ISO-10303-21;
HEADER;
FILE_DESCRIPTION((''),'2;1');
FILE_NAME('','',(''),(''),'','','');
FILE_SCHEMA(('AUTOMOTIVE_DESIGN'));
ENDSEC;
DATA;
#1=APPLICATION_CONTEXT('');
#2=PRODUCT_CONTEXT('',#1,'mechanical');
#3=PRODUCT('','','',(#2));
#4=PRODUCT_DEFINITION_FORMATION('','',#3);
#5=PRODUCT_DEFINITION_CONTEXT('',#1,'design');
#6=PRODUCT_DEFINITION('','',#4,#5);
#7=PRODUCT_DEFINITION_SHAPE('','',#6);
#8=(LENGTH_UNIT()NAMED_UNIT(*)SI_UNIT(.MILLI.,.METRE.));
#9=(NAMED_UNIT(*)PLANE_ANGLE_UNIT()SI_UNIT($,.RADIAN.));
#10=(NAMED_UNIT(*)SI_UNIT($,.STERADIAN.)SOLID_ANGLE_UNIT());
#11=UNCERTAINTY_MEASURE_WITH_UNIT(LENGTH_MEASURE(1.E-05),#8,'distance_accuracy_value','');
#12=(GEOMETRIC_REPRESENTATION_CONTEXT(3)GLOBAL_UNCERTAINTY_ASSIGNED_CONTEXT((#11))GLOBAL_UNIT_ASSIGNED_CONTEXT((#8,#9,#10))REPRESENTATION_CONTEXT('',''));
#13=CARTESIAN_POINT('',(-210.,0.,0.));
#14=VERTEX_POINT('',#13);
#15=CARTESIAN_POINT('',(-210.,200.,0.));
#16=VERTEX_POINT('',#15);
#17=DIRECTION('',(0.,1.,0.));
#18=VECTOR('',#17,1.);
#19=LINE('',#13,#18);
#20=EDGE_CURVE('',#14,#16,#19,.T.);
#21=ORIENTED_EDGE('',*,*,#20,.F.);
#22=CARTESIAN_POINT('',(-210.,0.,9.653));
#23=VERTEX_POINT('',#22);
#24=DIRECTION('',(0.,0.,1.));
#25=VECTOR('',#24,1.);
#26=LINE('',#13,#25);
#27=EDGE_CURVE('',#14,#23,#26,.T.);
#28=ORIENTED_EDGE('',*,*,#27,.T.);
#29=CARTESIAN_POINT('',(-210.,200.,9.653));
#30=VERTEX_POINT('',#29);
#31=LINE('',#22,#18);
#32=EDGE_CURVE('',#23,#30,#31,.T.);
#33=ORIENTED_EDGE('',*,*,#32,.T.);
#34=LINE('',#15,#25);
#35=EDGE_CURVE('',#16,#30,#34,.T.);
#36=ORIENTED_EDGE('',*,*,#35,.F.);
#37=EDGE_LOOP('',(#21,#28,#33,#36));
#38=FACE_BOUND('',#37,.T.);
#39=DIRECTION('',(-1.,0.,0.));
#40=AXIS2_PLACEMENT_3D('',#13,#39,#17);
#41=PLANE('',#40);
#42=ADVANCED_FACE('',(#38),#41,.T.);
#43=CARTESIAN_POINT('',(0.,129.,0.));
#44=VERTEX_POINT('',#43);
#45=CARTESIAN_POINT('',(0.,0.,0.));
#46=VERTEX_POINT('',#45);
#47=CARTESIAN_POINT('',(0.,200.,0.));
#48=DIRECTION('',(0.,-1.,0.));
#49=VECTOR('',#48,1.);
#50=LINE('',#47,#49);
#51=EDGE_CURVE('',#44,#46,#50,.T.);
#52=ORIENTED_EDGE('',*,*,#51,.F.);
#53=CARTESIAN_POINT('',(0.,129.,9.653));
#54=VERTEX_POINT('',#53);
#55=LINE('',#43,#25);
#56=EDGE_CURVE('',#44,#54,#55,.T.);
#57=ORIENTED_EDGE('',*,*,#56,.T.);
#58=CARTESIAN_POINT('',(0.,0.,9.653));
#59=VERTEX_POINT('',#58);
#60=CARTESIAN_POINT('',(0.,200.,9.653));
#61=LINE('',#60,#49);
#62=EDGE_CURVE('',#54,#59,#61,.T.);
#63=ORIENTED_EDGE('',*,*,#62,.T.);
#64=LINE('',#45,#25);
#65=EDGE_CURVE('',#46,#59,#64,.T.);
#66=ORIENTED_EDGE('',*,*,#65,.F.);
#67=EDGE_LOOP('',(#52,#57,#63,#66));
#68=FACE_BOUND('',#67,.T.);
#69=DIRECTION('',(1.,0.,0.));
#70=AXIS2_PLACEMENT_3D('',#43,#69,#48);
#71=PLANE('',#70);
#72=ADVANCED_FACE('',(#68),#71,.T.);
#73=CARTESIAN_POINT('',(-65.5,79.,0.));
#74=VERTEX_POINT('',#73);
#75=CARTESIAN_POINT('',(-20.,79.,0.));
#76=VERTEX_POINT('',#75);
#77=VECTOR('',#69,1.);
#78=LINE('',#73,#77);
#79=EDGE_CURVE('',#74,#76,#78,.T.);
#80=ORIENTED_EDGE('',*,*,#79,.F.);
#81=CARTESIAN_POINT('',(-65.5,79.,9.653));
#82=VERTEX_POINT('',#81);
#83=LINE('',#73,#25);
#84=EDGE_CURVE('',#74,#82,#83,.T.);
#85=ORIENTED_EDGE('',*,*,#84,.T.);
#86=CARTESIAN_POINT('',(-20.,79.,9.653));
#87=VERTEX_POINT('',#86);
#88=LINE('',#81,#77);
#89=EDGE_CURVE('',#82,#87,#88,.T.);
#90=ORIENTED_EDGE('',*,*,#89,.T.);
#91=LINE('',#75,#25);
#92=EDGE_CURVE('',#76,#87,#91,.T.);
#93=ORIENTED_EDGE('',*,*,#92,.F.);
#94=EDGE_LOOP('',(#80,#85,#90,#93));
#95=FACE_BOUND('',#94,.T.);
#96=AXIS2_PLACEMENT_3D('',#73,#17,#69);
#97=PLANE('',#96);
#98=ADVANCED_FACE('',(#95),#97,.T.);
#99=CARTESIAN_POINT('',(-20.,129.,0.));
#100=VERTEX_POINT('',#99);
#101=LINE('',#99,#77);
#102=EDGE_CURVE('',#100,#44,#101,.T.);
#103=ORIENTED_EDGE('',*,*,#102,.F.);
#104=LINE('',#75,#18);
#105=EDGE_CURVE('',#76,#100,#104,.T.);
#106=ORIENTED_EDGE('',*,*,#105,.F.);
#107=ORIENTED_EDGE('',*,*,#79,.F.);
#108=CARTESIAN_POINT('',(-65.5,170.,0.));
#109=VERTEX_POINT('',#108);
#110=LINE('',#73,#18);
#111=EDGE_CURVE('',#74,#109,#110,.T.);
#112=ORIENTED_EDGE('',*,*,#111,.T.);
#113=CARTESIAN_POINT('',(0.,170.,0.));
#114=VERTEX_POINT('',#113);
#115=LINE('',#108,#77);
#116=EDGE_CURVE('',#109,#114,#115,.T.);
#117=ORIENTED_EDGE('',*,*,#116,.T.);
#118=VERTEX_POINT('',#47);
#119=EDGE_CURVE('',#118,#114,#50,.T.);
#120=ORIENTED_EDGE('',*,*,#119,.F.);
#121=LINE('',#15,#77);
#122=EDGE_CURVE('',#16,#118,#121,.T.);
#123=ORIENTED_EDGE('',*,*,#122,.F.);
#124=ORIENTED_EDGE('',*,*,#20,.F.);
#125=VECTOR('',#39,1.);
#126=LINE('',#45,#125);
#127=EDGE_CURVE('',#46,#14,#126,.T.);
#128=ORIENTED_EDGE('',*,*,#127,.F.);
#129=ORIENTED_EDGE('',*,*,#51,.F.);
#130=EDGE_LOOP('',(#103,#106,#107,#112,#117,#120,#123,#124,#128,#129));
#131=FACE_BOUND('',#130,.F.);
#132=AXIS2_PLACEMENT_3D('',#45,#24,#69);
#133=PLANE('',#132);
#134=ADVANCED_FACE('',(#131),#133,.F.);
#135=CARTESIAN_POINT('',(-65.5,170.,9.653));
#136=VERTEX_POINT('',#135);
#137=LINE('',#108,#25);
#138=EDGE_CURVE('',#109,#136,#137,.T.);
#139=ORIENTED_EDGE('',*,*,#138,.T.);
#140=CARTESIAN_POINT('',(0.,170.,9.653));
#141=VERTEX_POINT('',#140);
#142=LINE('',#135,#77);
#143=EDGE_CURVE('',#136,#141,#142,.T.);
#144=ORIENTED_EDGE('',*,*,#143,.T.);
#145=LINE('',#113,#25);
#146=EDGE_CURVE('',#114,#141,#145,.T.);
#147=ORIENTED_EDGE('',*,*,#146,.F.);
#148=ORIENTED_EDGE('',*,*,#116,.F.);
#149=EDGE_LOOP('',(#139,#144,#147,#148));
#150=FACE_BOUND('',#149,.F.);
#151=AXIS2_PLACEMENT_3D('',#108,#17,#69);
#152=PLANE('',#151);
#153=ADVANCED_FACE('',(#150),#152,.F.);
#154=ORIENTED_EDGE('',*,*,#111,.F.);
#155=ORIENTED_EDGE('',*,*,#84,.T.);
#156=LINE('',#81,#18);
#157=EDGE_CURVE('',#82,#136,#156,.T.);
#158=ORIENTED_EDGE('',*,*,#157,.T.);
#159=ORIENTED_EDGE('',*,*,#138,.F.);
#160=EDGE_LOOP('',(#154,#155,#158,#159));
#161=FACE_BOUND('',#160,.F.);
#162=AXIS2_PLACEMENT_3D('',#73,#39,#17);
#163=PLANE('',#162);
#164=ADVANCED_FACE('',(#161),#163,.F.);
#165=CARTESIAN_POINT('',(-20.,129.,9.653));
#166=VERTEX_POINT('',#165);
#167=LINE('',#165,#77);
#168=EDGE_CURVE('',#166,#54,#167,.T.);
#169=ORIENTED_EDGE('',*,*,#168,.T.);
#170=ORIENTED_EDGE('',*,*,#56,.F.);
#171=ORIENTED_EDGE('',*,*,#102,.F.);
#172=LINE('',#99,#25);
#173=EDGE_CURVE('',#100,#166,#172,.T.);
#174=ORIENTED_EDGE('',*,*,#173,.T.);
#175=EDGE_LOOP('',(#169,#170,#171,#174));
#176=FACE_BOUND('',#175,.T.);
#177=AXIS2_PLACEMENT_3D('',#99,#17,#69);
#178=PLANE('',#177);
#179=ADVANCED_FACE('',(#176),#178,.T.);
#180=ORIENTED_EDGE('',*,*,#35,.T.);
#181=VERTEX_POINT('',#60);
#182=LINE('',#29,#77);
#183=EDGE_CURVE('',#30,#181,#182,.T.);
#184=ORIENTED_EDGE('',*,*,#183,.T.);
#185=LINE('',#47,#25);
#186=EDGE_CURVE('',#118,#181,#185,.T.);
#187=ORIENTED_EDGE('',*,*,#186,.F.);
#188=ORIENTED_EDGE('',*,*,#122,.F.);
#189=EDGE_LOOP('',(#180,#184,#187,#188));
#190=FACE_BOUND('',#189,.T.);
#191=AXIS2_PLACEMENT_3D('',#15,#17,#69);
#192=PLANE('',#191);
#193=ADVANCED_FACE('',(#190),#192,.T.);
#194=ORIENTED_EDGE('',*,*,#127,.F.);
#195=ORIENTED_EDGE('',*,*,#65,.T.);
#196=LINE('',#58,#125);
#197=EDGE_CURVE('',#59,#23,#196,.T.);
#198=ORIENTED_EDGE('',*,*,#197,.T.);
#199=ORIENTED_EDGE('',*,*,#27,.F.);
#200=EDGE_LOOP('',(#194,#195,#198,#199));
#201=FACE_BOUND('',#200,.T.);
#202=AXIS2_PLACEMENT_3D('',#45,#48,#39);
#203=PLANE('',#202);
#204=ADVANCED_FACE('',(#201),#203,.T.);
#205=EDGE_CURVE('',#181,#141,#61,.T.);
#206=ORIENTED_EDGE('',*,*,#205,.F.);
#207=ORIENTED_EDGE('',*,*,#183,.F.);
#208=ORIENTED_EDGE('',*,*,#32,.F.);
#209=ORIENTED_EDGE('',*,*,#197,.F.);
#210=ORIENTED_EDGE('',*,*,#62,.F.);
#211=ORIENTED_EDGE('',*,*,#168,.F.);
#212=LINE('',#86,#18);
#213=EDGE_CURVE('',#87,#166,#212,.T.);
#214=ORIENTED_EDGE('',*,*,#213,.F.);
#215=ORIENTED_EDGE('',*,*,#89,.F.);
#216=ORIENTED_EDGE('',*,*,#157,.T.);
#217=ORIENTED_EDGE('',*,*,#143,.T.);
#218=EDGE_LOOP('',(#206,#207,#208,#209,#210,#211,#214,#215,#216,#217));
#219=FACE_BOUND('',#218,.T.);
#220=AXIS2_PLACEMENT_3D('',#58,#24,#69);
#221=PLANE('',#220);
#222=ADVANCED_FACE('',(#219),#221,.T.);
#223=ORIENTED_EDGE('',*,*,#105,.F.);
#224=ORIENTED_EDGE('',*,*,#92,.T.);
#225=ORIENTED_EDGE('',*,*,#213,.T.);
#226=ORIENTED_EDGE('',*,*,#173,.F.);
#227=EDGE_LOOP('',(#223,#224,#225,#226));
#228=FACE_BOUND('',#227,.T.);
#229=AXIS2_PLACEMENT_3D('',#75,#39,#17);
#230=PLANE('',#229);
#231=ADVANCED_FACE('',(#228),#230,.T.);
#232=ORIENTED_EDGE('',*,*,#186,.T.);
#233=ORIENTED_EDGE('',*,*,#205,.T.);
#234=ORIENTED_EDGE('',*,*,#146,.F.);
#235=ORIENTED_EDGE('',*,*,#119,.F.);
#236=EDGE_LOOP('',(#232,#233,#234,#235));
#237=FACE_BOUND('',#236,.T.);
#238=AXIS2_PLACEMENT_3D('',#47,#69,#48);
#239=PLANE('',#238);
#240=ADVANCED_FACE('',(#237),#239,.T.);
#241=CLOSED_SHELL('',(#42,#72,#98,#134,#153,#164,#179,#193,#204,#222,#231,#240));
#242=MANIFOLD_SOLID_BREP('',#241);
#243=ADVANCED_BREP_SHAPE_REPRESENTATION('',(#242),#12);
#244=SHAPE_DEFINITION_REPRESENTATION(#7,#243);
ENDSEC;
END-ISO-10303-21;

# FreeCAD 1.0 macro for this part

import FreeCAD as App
import Part
import Sketcher
Q = App.Units.Quantity

doc = App.newDocument("Part")
body = doc.addObject("PartDesign::Body", "Body")

sketch1 = doc.addObject("Sketcher::SketchObject", "Sketch")
body.addObject(sketch1)
sketch1.AttachmentSupport = (doc.XY_Plane, [""])
sketch1.MapMode = "FlatFace"
sketch1.addGeometry([
    Part.LineSegment(App.Vector(-210, 0, 0), App.Vector(0, 0, 0)),
    Part.LineSegment(App.Vector(0, 0, 0), App.Vector(0, 129, 0)),
    Part.LineSegment(App.Vector(0, 129, 0), App.Vector(-20, 129, 0)),
    Part.LineSegment(App.Vector(-20, 129, 0), App.Vector(-20, 79, 0)),
    Part.LineSegment(App.Vector(-20, 79, 0), App.Vector(-66, 79, 0)),
    Part.LineSegment(App.Vector(-66, 79, 0), App.Vector(-66, 170, 0)),
    Part.LineSegment(App.Vector(-66, 170, 0), App.Vector(0, 170, 0)),
    Part.LineSegment(App.Vector(0, 170, 0), App.Vector(0, 200, 0)),
    Part.LineSegment(App.Vector(0, 200, 0), App.Vector(-210, 200, 0)),
    Part.LineSegment(App.Vector(-210, 200, 0), App.Vector(-210, 0, 0)),
], False)
sketch1.addConstraint([
    Sketcher.Constraint("Coincident", 0, 2, 1, 1),
    Sketcher.Constraint("Coincident", 1, 2, 2, 1),
    Sketcher.Constraint("Coincident", 2, 2, 3, 1),
    Sketcher.Constraint("Coincident", 3, 2, 4, 1),
    Sketcher.Constraint("Coincident", 4, 2, 5, 1),
    Sketcher.Constraint("Coincident", 5, 2, 6, 1),
    Sketcher.Constraint("Coincident", 6, 2, 7, 1),
    Sketcher.Constraint("Coincident", 7, 2, 8, 1),
    Sketcher.Constraint("Coincident", 8, 2, 9, 1),
    Sketcher.Constraint("Coincident", 9, 2, 0, 1),
    Sketcher.Constraint("Horizontal", 0),
    Sketcher.Constraint("Vertical", 1),
    Sketcher.Constraint("Horizontal", 2),
    Sketcher.Constraint("Vertical", 3),
    Sketcher.Constraint("Horizontal", 4),
    Sketcher.Constraint("Vertical", 5),
    Sketcher.Constraint("Horizontal", 6),
    Sketcher.Constraint("Vertical", 7),
    Sketcher.Constraint("Horizontal", 8),
    Sketcher.Constraint("Vertical", 9),
    Sketcher.Constraint("Coincident", 0, 2, -1, 1),
    Sketcher.Constraint("PointOnObject", 6, 2, -2),
    Sketcher.Constraint("DistanceX", 0, 1, 0, 2, Q("210 mm")),
    Sketcher.Constraint("DistanceX", 2, 2, 2, 1, Q("20 mm")),
    Sketcher.Constraint("DistanceY", 3, 2, 3, 1, Q("50 mm")),
    Sketcher.Constraint("DistanceY", 5, 1, 5, 2, Q("91 mm")),
    Sketcher.Constraint("DistanceY", 7, 1, 7, 2, Q("30 mm")),
    Sketcher.Constraint("DistanceY", 9, 2, 9, 1, Q("200 mm")),
    Sketcher.Constraint("DistanceX", 4, 2, 4, 1, Q("45.5 mm")),
])
pad1 = doc.addObject("PartDesign::Pad", "Pad")
body.addObject(pad1)
pad1.Profile = sketch1
pad1.Length = 9.653

doc.recompute()
